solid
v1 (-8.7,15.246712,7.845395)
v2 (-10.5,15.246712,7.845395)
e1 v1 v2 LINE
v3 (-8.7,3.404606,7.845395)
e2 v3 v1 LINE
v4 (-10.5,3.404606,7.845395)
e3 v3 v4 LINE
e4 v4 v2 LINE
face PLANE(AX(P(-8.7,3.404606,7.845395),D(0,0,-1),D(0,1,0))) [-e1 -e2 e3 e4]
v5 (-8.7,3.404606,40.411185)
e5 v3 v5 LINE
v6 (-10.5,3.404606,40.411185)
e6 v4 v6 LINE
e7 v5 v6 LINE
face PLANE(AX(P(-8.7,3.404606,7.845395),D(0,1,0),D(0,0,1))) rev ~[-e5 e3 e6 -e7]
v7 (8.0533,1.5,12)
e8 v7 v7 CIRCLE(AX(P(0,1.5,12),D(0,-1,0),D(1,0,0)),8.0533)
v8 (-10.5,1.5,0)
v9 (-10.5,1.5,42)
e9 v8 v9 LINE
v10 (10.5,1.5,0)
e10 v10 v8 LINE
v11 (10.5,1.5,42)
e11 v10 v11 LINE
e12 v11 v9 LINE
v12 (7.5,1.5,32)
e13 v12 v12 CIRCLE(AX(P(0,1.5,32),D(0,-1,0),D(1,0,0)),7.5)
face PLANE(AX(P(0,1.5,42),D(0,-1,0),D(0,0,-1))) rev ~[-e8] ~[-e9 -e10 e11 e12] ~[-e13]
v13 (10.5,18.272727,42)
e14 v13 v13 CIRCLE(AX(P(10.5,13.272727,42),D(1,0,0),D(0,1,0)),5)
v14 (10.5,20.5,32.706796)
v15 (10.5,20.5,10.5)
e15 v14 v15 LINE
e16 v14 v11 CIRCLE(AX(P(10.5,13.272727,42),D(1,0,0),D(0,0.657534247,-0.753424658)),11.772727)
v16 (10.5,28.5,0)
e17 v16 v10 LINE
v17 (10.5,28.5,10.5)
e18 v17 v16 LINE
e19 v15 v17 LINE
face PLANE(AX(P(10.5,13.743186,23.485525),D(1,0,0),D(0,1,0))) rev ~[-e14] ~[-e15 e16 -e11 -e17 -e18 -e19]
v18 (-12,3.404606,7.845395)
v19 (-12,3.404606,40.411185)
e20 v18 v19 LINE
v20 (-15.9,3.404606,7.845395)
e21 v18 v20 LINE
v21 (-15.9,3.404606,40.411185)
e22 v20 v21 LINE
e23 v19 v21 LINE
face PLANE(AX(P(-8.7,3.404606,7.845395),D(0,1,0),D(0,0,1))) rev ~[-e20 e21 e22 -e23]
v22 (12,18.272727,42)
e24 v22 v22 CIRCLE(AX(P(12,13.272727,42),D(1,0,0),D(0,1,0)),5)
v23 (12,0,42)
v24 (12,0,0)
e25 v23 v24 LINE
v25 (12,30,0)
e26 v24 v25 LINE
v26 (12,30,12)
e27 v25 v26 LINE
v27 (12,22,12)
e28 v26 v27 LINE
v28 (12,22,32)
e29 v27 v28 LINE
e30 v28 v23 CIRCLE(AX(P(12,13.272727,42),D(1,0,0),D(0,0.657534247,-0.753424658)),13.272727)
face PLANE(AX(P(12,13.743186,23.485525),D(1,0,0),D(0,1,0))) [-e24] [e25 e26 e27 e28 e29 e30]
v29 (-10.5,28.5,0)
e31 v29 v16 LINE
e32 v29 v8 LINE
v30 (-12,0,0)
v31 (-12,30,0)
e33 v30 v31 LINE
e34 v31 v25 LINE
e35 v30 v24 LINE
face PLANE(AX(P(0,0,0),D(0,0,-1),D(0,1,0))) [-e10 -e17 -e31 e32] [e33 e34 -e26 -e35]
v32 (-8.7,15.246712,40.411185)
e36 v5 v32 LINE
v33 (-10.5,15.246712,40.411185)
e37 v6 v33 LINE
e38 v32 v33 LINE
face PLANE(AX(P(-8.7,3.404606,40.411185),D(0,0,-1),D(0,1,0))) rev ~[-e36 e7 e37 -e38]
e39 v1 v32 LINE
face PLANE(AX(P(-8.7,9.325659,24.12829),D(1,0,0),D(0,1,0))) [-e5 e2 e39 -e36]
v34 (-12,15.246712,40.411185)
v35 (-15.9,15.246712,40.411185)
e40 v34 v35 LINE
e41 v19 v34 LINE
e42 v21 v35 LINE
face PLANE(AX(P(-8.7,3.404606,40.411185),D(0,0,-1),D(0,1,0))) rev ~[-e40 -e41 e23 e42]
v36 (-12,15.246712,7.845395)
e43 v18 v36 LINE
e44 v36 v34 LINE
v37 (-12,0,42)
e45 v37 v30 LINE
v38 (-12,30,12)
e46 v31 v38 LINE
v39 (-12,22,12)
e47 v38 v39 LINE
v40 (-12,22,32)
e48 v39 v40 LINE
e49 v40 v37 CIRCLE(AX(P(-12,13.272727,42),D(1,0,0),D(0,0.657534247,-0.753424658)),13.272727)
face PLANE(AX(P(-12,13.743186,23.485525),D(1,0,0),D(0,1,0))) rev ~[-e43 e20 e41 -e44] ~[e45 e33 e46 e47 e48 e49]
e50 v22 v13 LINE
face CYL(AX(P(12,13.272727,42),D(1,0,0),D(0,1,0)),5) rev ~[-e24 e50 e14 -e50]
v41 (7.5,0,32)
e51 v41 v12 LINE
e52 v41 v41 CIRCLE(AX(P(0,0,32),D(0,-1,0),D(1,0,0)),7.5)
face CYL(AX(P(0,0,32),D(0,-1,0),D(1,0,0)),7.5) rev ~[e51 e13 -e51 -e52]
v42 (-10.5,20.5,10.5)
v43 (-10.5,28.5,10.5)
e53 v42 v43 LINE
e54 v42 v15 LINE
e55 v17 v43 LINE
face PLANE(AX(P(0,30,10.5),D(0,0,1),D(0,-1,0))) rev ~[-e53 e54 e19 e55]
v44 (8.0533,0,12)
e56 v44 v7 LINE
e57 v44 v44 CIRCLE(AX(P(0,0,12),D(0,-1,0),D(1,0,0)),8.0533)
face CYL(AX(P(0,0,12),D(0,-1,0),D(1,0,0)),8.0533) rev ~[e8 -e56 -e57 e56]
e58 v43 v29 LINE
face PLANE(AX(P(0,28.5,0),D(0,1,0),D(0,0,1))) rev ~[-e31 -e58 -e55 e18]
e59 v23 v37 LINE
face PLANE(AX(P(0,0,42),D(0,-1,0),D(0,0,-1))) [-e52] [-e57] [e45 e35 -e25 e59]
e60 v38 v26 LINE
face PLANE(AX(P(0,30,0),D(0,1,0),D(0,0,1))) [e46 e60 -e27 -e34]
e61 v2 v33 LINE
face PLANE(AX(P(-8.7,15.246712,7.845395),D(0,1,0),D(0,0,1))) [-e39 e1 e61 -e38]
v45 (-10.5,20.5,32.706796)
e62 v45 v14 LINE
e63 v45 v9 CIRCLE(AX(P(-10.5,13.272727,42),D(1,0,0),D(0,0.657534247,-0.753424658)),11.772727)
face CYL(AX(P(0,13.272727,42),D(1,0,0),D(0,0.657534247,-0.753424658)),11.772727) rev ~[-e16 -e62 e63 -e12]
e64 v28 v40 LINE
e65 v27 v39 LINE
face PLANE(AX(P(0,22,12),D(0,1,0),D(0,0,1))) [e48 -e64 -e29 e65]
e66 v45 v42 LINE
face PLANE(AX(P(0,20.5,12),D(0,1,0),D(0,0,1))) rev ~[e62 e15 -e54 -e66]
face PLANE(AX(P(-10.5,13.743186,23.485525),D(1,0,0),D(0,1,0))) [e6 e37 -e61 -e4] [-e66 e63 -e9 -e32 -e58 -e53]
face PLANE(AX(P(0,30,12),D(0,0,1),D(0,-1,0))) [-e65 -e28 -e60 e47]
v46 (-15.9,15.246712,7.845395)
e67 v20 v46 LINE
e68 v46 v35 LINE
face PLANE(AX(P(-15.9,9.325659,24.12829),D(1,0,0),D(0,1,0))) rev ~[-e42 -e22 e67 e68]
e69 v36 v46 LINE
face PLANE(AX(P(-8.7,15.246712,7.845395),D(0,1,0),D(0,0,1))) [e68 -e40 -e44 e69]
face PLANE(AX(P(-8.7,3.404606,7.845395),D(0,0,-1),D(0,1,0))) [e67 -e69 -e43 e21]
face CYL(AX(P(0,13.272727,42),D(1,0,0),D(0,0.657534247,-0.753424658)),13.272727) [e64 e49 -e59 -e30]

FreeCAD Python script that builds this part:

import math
import FreeCAD as App
import Part
import Sketcher
from FreeCAD import Vector


def faces_at(feature, points):
    """Names of the faces that lie closest to the given points."""
    faces = feature.Shape.Faces
    near = lambda p: min(range(len(faces)), key=lambda i: faces[i].distToShape(Part.Vertex(*p))[0])
    return sorted({f"Face{near(p) + 1}" for p in points})

doc = App.newDocument("Part")
body = doc.addObject("PartDesign::Body", "Body")

sketch1 = body.newObject("Sketcher::SketchObject", "Sketch")
sketch1.AttachmentSupport = (doc.getObject("YZ_Plane"), [""])
sketch1.MapMode = "FlatFace"
sketch1.addGeometry([
    Part.LineSegment(Vector(0, 42, 0), Vector(0, 0, 0)),
    Part.LineSegment(Vector(0, 0, 0), Vector(30, 0, 0)),
    Part.LineSegment(Vector(30, 0, 0), Vector(30, 12, 0)),
    Part.LineSegment(Vector(30, 12, 0), Vector(22, 12, 0)),
    Part.LineSegment(Vector(22, 12, 0), Vector(22, 32, 0)),
    Part.ArcOfCircle(Part.Circle(Vector(13.272727, 42, 0), Vector(0, 0, 1), 13.272727), math.radians(-48.88791), math.radians(180)),
], False)
sketch1.addConstraint([
    Sketcher.Constraint("Coincident", 0, 2, 1, 1),
    Sketcher.Constraint("Coincident", 1, 2, 2, 1),
    Sketcher.Constraint("Coincident", 2, 2, 3, 1),
    Sketcher.Constraint("Coincident", 3, 2, 4, 1),
    Sketcher.Constraint("Coincident", 4, 2, 5, 1),
    Sketcher.Constraint("Tangent", 5, 2, 0, 1),
    Sketcher.Constraint("Vertical", 0),
    Sketcher.Constraint("Horizontal", 1),
    Sketcher.Constraint("Vertical", 2),
    Sketcher.Constraint("Horizontal", 3),
    Sketcher.Constraint("Vertical", 4),
    Sketcher.Constraint("Coincident", 0, 2, -1, 1),
    Sketcher.Constraint("DistanceX", 1, 1, 1, 2, 30.0),
    Sketcher.Constraint("DistanceX", 3, 2, 3, 1, 8.0),
    Sketcher.Constraint("DistanceY", 0, 2, 0, 1, 42.0),
    Sketcher.Constraint("DistanceY", 2, 1, 2, 2, 12.0),
    Sketcher.Constraint("DistanceY", 4, 1, 4, 2, 20.0),
])
pad1 = body.newObject("PartDesign::Pad", "Pad")
pad1.Profile = sketch1
pad1.Length = 24
pad1.Midplane = True
doc.recompute()

thickness = body.newObject("PartDesign::Thickness", "Thickness")
thickness.Base = (pad1, faces_at(pad1, [(0, 15, 0)]))
thickness.Value = 1.5
thickness.Reversed = True
thickness.Join = "Intersection"

sketch2 = body.newObject("Sketcher::SketchObject", "Sketch001")
sketch2.AttachmentSupport = (doc.getObject("YZ_Plane"), [""])
sketch2.MapMode = "FlatFace"
sketch2.AttachmentOffset = App.Placement(Vector(0, 0, 12), App.Rotation())
sketch2.addGeometry(Part.Circle(Vector(13.272727, 42, 0), Vector(0, 0, 1), 5), False)
sketch2.addConstraint([
    Sketcher.Constraint("Diameter", 0, 10.0),
    Sketcher.Constraint("DistanceY", -1, 1, 0, 3, 42.0),
    Sketcher.Constraint("DistanceX", -1, 1, 0, 3, 13.272727),
])
pocket1 = body.newObject("PartDesign::Pocket", "Pocket")
pocket1.Profile = sketch2
pocket1.Length = 5

sketch3 = body.newObject("Sketcher::SketchObject", "Sketch002")
sketch3.AttachmentSupport = (doc.getObject("XZ_Plane"), [""])
sketch3.MapMode = "FlatFace"
sketch3.addGeometry([
    Part.Circle(Vector(0, 32, 0), Vector(0, 0, 1), 7.5),
    Part.Circle(Vector(0, 12, 0), Vector(0, 0, 1), 8.0533),
], False)
sketch3.addConstraint([
    Sketcher.Constraint("PointOnObject", 0, 3, -2),
    Sketcher.Constraint("PointOnObject", 1, 3, -2),
    Sketcher.Constraint("Diameter", 0, 15.0),
    Sketcher.Constraint("DistanceY", -1, 1, 0, 3, 32.0),
    Sketcher.Constraint("DistanceY", -1, 1, 1, 3, 12.0),
    Sketcher.Constraint("Diameter", 1, 16.106601),
])
pocket2 = body.newObject("PartDesign::Pocket", "Pocket001")
pocket2.Profile = sketch3
pocket2.Length = 5
body2 = doc.addObject("PartDesign::Body", "Body001")
doc.recompute()

mirroring = doc.addObject("Part::Mirroring", "Mirroring")
mirroring.Source = body
mirroring.Base = Vector(12, 12.836744, 24.85776)
mirroring.Normal = Vector(1, 0, 0)
body2.BaseFeature = mirroring
doc.recompute()

sketch4 = body.newObject("Sketcher::SketchObject", "Sketch003")
sketch4.AttachmentSupport = (doc.getObject("YZ_Plane"), [""])
sketch4.MapMode = "FlatFace"
sketch4.AttachmentOffset = App.Placement(Vector(0, 0, -8.7), App.Rotation())
sketch4.addGeometry([
    Part.LineSegment(Vector(3.404606, 40.411185, 0), Vector(3.404606, 7.845395, 0)),
    Part.LineSegment(Vector(3.404606, 7.845395, 0), Vector(15.246712, 7.845395, 0)),
    Part.LineSegment(Vector(15.246712, 7.845395, 0), Vector(15.246712, 40.411185, 0)),
    Part.LineSegment(Vector(15.246712, 40.411185, 0), Vector(3.404606, 40.411185, 0)),
], False)
sketch4.addConstraint([
    Sketcher.Constraint("Coincident", 0, 2, 1, 1),
    Sketcher.Constraint("Coincident", 1, 2, 2, 1),
    Sketcher.Constraint("Coincident", 2, 2, 3, 1),
    Sketcher.Constraint("Coincident", 3, 2, 0, 1),
    Sketcher.Constraint("Vertical", 0),
    Sketcher.Constraint("Horizontal", 1),
    Sketcher.Constraint("Vertical", 2),
    Sketcher.Constraint("Horizontal", 3),
    Sketcher.Constraint("DistanceY", 0, 2, 0, 1, 32.56579),
    Sketcher.Constraint("DistanceX", 1, 1, 1, 2, 11.842106),
    Sketcher.Constraint("DistanceX", -1, 1, 1, 2, 15.246712),
    Sketcher.Constraint("DistanceY", -1, 1, 0, 2, 7.845395),
])
pad2 = body.newObject("PartDesign::Pad", "Pad001")
pad2.Profile = sketch4
pad2.Length = 7.2
pad2.Reversed = True
body2.Visibility = False
mirroring.Visibility = False

doc.recompute()
